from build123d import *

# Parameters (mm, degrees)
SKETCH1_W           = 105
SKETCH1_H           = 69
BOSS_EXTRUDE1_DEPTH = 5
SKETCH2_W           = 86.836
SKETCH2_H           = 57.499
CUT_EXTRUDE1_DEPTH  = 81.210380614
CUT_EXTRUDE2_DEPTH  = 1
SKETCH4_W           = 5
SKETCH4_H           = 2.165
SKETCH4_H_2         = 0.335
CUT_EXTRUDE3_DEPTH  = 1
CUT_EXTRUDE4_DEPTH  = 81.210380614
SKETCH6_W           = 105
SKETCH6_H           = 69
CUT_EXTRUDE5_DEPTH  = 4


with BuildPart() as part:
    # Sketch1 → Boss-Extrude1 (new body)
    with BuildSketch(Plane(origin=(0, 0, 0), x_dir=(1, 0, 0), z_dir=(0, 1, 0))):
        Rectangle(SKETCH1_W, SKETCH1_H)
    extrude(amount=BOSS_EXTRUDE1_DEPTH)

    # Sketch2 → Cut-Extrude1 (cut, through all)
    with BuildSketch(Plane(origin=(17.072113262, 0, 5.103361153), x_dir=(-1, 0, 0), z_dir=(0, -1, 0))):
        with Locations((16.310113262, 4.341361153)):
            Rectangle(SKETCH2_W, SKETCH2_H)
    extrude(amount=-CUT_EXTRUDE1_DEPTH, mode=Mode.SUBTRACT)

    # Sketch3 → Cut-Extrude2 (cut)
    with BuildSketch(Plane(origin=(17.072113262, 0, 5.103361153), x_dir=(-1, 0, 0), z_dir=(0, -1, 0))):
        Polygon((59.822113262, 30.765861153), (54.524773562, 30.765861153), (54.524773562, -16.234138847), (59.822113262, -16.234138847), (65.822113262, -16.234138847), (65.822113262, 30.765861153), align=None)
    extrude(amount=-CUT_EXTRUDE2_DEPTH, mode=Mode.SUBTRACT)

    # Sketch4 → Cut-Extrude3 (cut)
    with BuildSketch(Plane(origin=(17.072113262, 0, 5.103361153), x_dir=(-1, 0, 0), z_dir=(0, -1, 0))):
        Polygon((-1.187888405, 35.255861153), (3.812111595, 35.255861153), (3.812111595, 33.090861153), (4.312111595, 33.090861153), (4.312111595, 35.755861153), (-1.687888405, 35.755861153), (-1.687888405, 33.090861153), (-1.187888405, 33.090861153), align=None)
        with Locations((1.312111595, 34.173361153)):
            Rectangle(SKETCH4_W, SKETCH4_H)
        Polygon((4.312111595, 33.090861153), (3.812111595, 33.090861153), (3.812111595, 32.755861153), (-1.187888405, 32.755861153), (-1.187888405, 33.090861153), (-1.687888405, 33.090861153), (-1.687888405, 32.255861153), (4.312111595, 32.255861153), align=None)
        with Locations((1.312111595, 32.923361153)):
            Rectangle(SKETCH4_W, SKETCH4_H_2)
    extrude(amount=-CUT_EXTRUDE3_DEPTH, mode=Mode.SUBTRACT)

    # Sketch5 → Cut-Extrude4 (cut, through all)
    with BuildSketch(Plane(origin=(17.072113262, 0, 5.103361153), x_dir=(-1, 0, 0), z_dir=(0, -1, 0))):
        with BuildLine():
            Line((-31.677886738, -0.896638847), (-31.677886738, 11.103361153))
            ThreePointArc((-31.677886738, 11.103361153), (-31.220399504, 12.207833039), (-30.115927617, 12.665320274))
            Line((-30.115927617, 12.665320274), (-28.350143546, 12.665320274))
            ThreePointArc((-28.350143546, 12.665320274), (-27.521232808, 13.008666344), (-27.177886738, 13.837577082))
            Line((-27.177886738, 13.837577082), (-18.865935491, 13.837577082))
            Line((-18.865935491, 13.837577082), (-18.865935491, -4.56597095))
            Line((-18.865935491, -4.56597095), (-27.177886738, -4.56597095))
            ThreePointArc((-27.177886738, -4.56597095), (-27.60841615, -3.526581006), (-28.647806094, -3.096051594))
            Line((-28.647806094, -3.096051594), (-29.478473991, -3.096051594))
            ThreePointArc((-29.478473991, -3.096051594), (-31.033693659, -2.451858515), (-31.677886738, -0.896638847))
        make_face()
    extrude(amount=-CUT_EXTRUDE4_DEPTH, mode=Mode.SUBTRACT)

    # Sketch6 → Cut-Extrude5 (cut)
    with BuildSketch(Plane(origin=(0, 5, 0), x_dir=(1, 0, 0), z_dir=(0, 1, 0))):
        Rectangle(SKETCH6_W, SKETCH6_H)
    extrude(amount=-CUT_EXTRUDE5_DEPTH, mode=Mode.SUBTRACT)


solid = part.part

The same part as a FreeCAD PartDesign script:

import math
import FreeCAD as App
import Part
import Sketcher

V = App.Vector

doc = App.newDocument("Part")
body = doc.addObject("PartDesign::Body", "Body")

# Sketch on XZ plane
sketch1 = body.newObject("Sketcher::SketchObject", "Sketch")
sketch1.AttachmentSupport = (doc.getObject("XZ_Plane"), [""])
sketch1.MapMode = "FlatFace"
sketch1.addGeometry([
    Part.LineSegment(V(-52, -34, 0), V(-52, 34, 0)),
    Part.LineSegment(V(-52, 34, 0), V(52, 34, 0)),
    Part.LineSegment(V(52, 34, 0), V(52, -34, 0)),
    Part.LineSegment(V(52, -34, 0), V(-52, -34, 0)),
], False)
sketch1.addConstraint([
    Sketcher.Constraint("Coincident", 0, 2, 1, 1),
    Sketcher.Constraint("Coincident", 1, 2, 2, 1),
    Sketcher.Constraint("Coincident", 2, 2, 3, 1),
    Sketcher.Constraint("Coincident", 3, 2, 0, 1),
    Sketcher.Constraint("Vertical", 0),
    Sketcher.Constraint("Horizontal", 1),
    Sketcher.Constraint("Vertical", 2),
    Sketcher.Constraint("Horizontal", 3),
    Sketcher.Constraint("Symmetric", 0, 2, 2, 2, -1, 1),
    Sketcher.Constraint("DistanceX", 1, 1, 1, 2, 105.0),
    Sketcher.Constraint("DistanceY", 0, 1, 0, 2, 69.0),
])
pad1 = body.newObject("PartDesign::Pad", "Pad")
pad1.Profile = sketch1
pad1.Length = 5
pad1.Reversed = True

# Sketch on XZ plane
sketch2 = body.newObject("Sketcher::SketchObject", "Sketch001")
sketch2.AttachmentSupport = (doc.getObject("XZ_Plane"), [""])
sketch2.MapMode = "FlatFace"
sketch2.addGeometry([
    Part.LineSegment(V(44, -28, 0), V(44, 30, 0)),
    Part.LineSegment(V(44, 30, 0), V(-43, 30, 0)),
    Part.LineSegment(V(-43, 30, 0), V(-43, -28, 0)),
    Part.LineSegment(V(-43, -28, 0), V(44, -28, 0)),
], False)
sketch2.addConstraint([
    Sketcher.Constraint("Coincident", 0, 2, 1, 1),
    Sketcher.Constraint("Coincident", 1, 2, 2, 1),
    Sketcher.Constraint("Coincident", 2, 2, 3, 1),
    Sketcher.Constraint("Coincident", 3, 2, 0, 1),
    Sketcher.Constraint("Vertical", 0),
    Sketcher.Constraint("Horizontal", 1),
    Sketcher.Constraint("Vertical", 2),
    Sketcher.Constraint("Horizontal", 3),
    Sketcher.Constraint("DistanceX", 1, 2, 1, 1, 86.836),
    Sketcher.Constraint("DistanceY", 0, 1, 0, 2, 57.499),
    Sketcher.Constraint("DistanceX", -1, 1, 0, 2, 44.18),
    Sketcher.Constraint("DistanceY", -1, 1, 0, 2, 29.5115),
])
pocket1 = body.newObject("PartDesign::Pocket", "Pocket")
pocket1.Profile = sketch2
pocket1.Type = "ThroughAll"

# Sketch on XZ plane
sketch3 = body.newObject("Sketcher::SketchObject", "Sketch002")
sketch3.AttachmentSupport = (doc.getObject("XZ_Plane"), [""])
sketch3.MapMode = "FlatFace"
sketch3.addGeometry([
    Part.LineSegment(V(-37, -26, 0), V(-37, 21, 0)),
    Part.LineSegment(V(-37, 21, 0), V(-49, 21, 0)),
    Part.LineSegment(V(-49, 21, 0), V(-49, -26, 0)),
    Part.LineSegment(V(-49, -26, 0), V(-37, -26, 0)),
], False)
sketch3.addConstraint([
    Sketcher.Constraint("Coincident", 0, 2, 1, 1),
    Sketcher.Constraint("Coincident", 1, 2, 2, 1),
    Sketcher.Constraint("Coincident", 2, 2, 3, 1),
    Sketcher.Constraint("Coincident", 3, 2, 0, 1),
    Sketcher.Constraint("Vertical", 0),
    Sketcher.Constraint("Horizontal", 1),
    Sketcher.Constraint("Vertical", 2),
    Sketcher.Constraint("Horizontal", 3),
    Sketcher.Constraint("DistanceY", 0, 1, 0, 2, 47.0),
    Sketcher.Constraint("DistanceX", 1, 2, -1, 1, 48.75),
    Sketcher.Constraint("DistanceX", 1, 2, 1, 1, 11.29734),
    Sketcher.Constraint("DistanceY", -1, 1, 0, 2, 21.3375),
])
pocket2 = body.newObject("PartDesign::Pocket", "Pocket001")
pocket2.Profile = sketch3
pocket2.Length = 1

# Sketch on XZ plane
sketch4 = body.newObject("Sketcher::SketchObject", "Sketch003")
sketch4.AttachmentSupport = (doc.getObject("XZ_Plane"), [""])
sketch4.MapMode = "FlatFace"
sketch4.addGeometry([
    Part.LineSegment(V(12.8, -30.7, 0), V(18.8, -30.7, 0)),
    Part.LineSegment(V(18.8, -30.7, 0), V(18.8, -27.2, 0)),
    Part.LineSegment(V(18.8, -27.2, 0), V(12.8, -27.2, 0)),
    Part.LineSegment(V(12.8, -27.2, 0), V(12.8, -30.7, 0)),
], False)
sketch4.addConstraint([
    Sketcher.Constraint("Coincident", 0, 2, 1, 1),
    Sketcher.Constraint("Coincident", 1, 2, 2, 1),
    Sketcher.Constraint("Coincident", 2, 2, 3, 1),
    Sketcher.Constraint("Coincident", 3, 2, 0, 1),
    Sketcher.Constraint("Horizontal", 0),
    Sketcher.Constraint("Vertical", 1),
    Sketcher.Constraint("Horizontal", 2),
    Sketcher.Constraint("Vertical", 3),
    Sketcher.Constraint("DistanceX", 0, 1, 0, 2, 6.0),
    Sketcher.Constraint("DistanceY", 1, 1, 1, 2, 3.5),
    Sketcher.Constraint("DistanceX", -1, 1, 0, 2, 18.760002),
    Sketcher.Constraint("DistanceY", 0, 2, -1, 1, 30.6525),
])
pocket3 = body.newObject("PartDesign::Pocket", "Pocket002")
pocket3.Profile = sketch4
pocket3.Length = 1

# Sketch on XZ plane
sketch5 = body.newObject("Sketcher::SketchObject", "Sketch004")
sketch5.AttachmentSupport = (doc.getObject("XZ_Plane"), [""])
sketch5.MapMode = "FlatFace"
sketch5.addGeometry([
    Part.LineSegment(V(48.8, -6, 0), V(48.8, 6, 0)),  # 0
    Part.ArcOfCircle(Part.Circle(V(46.6, 6, 0), V(0, 0, 1), 2.2), math.radians(0), math.radians(90)),  # 1
    Part.LineSegment(V(46.6, 8.2, 0), V(45.7, 8.2, 0)),  # 2
    Part.ArcOfCircle(Part.Circle(V(45.7, 9.7, 0), V(0, 0, 1), 1.5), math.radians(-180), math.radians(-90)),  # 3
    Part.LineSegment(V(44.2, 9.7, 0), V(35.9, 9.7, 0)),  # 4
    Part.LineSegment(V(35.9, 9.7, 0), V(35.9, -8.7, 0)),  # 5
    Part.LineSegment(V(35.9, -8.7, 0), V(44.2, -8.7, 0)),  # 6
    Part.ArcOfCircle(Part.Circle(V(45.4, -8.7, 0), V(0, 0, 1), 1.2), math.radians(90), math.radians(180)),  # 7
    Part.LineSegment(V(45.4, -7.6, 0), V(47.2, -7.6, 0)),  # 8
    Part.ArcOfCircle(Part.Circle(V(47.2, -6, 0), V(0, 0, 1), 1.6), math.radians(-90), math.radians(0)),  # 9
], False)
sketch5.addConstraint([
    Sketcher.Constraint("Tangent", 0, 2, 1, 1),
    Sketcher.Constraint("Tangent", 1, 2, 2, 1),
    Sketcher.Constraint("Tangent", 2, 2, 3, 2),
    Sketcher.Constraint("Coincident", 3, 1, 4, 1),
    Sketcher.Constraint("Coincident", 4, 2, 5, 1),
    Sketcher.Constraint("Coincident", 5, 2, 6, 1),
    Sketcher.Constraint("Coincident", 6, 2, 7, 2),
    Sketcher.Constraint("Tangent", 7, 1, 8, 1),
    Sketcher.Constraint("Tangent", 8, 2, 9, 1),
    Sketcher.Constraint("Tangent", 9, 2, 0, 1),
    Sketcher.Constraint("Vertical", 0),
    Sketcher.Constraint("Horizontal", 2),
    Sketcher.Constraint("Horizontal", 4),
    Sketcher.Constraint("Vertical", 5),
    Sketcher.Constraint("Horizontal", 6),
    Sketcher.Constraint("Horizontal", 8),
    Sketcher.Constraint("Horizontal", 7, 3, 5, 2),
    Sketcher.Constraint("Vertical", 3, 1, 6, 2),
    Sketcher.Constraint("DistanceY", 0, 1, 0, 2, 12.0),
    Sketcher.Constraint("DistanceY", -1, 1, 1, 3, 6.0),
    Sketcher.Constraint("DistanceX", 3, 1, 0, 2, 4.5),
    Sketcher.Constraint("DistanceX", -1, 1, 0, 2, 48.75),
    Sketcher.Constraint("Radius", 3, 1.469919),
    Sketcher.Constraint("Radius", 9, 1.561959),
    Sketcher.Constraint("Radius", 1, 2.199413),
    Sketcher.Constraint("Radius", 7, 1.172257),
    Sketcher.Constraint("DistanceX", 4, 2, 4, 1, 8.311951),
    Sketcher.Constraint("DistanceY", 5, 2, 5, 1, 18.403548),
])
pocket4 = body.newObject("PartDesign::Pocket", "Pocket003")
pocket4.Profile = sketch5
pocket4.Type = "ThroughAll"

# Sketch on XZ plane
sketch6 = body.newObject("Sketcher::SketchObject", "Sketch005")
sketch6.AttachmentSupport = (doc.getObject("XZ_Plane"), [""])
sketch6.MapMode = "FlatFace"
sketch6.AttachmentOffset = App.Placement(V(0, 0, -5), App.Rotation())
sketch6.addGeometry([
    Part.LineSegment(V(-52, -34, 0), V(-52, 34, 0)),
    Part.LineSegment(V(-52, 34, 0), V(52, 34, 0)),
    Part.LineSegment(V(52, 34, 0), V(52, -34, 0)),
    Part.LineSegment(V(52, -34, 0), V(-52, -34, 0)),
], False)
sketch6.addConstraint([
    Sketcher.Constraint("Coincident", 0, 2, 1, 1),
    Sketcher.Constraint("Coincident", 1, 2, 2, 1),
    Sketcher.Constraint("Coincident", 2, 2, 3, 1),
    Sketcher.Constraint("Coincident", 3, 2, 0, 1),
    Sketcher.Constraint("Vertical", 0),
    Sketcher.Constraint("Horizontal", 1),
    Sketcher.Constraint("Vertical", 2),
    Sketcher.Constraint("Horizontal", 3),
    Sketcher.Constraint("Symmetric", 0, 2, 2, 2, -1, 1),
    Sketcher.Constraint("DistanceX", 1, 1, 1, 2, 105.0),
    Sketcher.Constraint("DistanceY", 0, 1, 0, 2, 69.0),
])
pocket5 = body.newObject("PartDesign::Pocket", "Pocket004")
pocket5.Profile = sketch6
pocket5.Length = 4
pocket5.Reversed = True

doc.recompute()
